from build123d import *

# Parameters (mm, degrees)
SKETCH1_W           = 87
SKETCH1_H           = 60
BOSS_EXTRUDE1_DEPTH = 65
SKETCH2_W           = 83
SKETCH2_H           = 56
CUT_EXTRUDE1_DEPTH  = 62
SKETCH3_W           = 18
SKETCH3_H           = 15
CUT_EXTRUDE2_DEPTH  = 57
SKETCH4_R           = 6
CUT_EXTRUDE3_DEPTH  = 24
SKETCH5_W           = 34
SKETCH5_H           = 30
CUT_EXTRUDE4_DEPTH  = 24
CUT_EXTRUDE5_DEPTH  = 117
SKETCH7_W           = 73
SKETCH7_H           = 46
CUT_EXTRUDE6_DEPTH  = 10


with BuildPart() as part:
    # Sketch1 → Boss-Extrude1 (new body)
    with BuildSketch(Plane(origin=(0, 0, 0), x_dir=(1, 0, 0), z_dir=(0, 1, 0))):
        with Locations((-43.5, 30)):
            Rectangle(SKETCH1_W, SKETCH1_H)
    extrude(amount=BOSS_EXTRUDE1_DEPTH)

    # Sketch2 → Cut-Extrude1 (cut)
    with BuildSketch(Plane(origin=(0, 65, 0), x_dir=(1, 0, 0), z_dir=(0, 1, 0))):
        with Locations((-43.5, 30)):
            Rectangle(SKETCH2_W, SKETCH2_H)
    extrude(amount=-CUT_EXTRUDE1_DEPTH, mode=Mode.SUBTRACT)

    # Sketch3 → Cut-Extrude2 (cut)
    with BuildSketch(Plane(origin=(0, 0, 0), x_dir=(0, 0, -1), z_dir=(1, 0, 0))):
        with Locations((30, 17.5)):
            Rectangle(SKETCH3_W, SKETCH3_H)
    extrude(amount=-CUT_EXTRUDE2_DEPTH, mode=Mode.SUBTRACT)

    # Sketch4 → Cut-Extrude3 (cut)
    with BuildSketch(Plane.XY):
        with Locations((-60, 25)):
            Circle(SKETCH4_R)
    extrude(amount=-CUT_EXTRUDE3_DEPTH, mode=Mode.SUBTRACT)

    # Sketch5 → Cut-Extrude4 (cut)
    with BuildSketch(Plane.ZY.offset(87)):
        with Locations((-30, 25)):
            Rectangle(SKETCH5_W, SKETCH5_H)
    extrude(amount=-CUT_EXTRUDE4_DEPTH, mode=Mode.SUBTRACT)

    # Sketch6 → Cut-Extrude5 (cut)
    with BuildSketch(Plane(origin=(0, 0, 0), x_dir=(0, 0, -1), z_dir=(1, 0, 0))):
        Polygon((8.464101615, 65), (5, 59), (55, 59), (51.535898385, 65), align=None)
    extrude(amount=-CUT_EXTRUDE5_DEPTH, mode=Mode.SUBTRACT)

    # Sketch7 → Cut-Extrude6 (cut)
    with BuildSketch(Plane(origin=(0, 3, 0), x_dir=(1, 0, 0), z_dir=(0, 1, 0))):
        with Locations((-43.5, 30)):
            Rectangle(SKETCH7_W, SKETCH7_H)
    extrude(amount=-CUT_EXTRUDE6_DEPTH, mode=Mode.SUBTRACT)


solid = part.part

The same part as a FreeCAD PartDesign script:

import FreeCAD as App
import Part
import Sketcher
Q = App.Units.Quantity


def add_polygon(sketch, points):
    """Adds a closed chain of lines whose ends are joined by coincident constraints."""
    first, n = sketch.GeometryCount, len(points)
    for a, b in zip(points, points[1:] + points[:1]):
        sketch.addGeometry(Part.LineSegment(App.Vector(*a, 0), App.Vector(*b, 0)), False)
    for i in range(n):
        sketch.addConstraint(Sketcher.Constraint("Coincident", first + i, 2, first + (i + 1) % n, 1))

doc = App.newDocument("Part")
body = doc.addObject("PartDesign::Body", "Body")

# Sketch on XZ plane
sketch1 = body.newObject("Sketcher::SketchObject", "Sketch")
sketch1.AttachmentSupport = (doc.getObject("XZ_Plane"), [""])
sketch1.MapMode = "FlatFace"
add_polygon(sketch1, [(-87, -60), (-87, 0), (0, 0), (0, -60)])  # lines 0-3
sketch1.addConstraint([
    Sketcher.Constraint("Vertical", 0),
    Sketcher.Constraint("Horizontal", 1),
    Sketcher.Constraint("Vertical", 2),
    Sketcher.Constraint("Horizontal", 3),
    Sketcher.Constraint("Coincident", 1, 2, -1, 1),
    Sketcher.Constraint("DistanceX", 1, 1, 1, 2, Q("87 mm")),
    Sketcher.Constraint("DistanceY", 0, 1, 0, 2, Q("60 mm")),
])
pad1 = body.newObject("PartDesign::Pad", "Pad")
pad1.Profile = sketch1
pad1.Length = 65
pad1.Reversed = True

# Sketch on XZ plane
sketch2 = body.newObject("Sketcher::SketchObject", "Sketch001")
sketch2.AttachmentSupport = (doc.getObject("XZ_Plane"), [""])
sketch2.MapMode = "FlatFace"
sketch2.AttachmentOffset = App.Placement(App.Vector(0, 0, -65), App.Rotation())
add_polygon(sketch2, [(-85, -58), (-85, -2), (-2, -2), (-2, -58)])  # lines 0-3
sketch2.addConstraint([
    Sketcher.Constraint("Vertical", 0),
    Sketcher.Constraint("Horizontal", 1),
    Sketcher.Constraint("Vertical", 2),
    Sketcher.Constraint("Horizontal", 3),
    Sketcher.Constraint("DistanceX", 1, 1, 1, 2, Q("83 mm")),
    Sketcher.Constraint("DistanceY", 0, 1, 0, 2, Q("56 mm")),
    Sketcher.Constraint("DistanceX", 0, 2, -1, 1, Q("85 mm")),
    Sketcher.Constraint("DistanceY", 0, 2, -1, 1, Q("2 mm")),
])
pocket1 = body.newObject("PartDesign::Pocket", "Pocket")
pocket1.Profile = sketch2
pocket1.Length = 62
pocket1.Reversed = True

# Sketch on YZ plane
sketch3 = body.newObject("Sketcher::SketchObject", "Sketch002")
sketch3.AttachmentSupport = (doc.getObject("YZ_Plane"), [""])
sketch3.MapMode = "FlatFace"
add_polygon(sketch3, [(25, -21), (10, -21), (10, -39), (25, -39)])  # lines 0-3
sketch3.addConstraint([
    Sketcher.Constraint("Horizontal", 0),
    Sketcher.Constraint("Vertical", 1),
    Sketcher.Constraint("Horizontal", 2),
    Sketcher.Constraint("Vertical", 3),
    Sketcher.Constraint("DistanceX", 0, 2, 0, 1, Q("15 mm")),
    Sketcher.Constraint("DistanceY", 1, 2, 1, 1, Q("18 mm")),
    Sketcher.Constraint("DistanceX", -1, 1, 0, 2, Q("10 mm")),
    Sketcher.Constraint("DistanceY", 0, 2, -1, 1, Q("21 mm")),
])
pocket2 = body.newObject("PartDesign::Pocket", "Pocket001")
pocket2.Profile = sketch3
pocket2.Length = 57

# Sketch on XY plane
sketch4 = body.newObject("Sketcher::SketchObject", "Sketch003")
sketch4.AttachmentSupport = (doc.getObject("XY_Plane"), [""])
sketch4.MapMode = "FlatFace"
sketch4.addGeometry(Part.Circle(App.Vector(-60, 25, 0), App.Vector(0, 0, 1), 6), False)
sketch4.addConstraint([
    Sketcher.Constraint("Diameter", 0, Q("12 mm")),
    Sketcher.Constraint("DistanceX", 0, 3, -1, 1, Q("60 mm")),
    Sketcher.Constraint("DistanceY", -1, 1, 0, 3, Q("25 mm")),
])
pocket3 = body.newObject("PartDesign::Pocket", "Pocket002")
pocket3.Profile = sketch4
pocket3.Length = 24

# Sketch on YZ plane
sketch5 = body.newObject("Sketcher::SketchObject", "Sketch004")
sketch5.AttachmentSupport = (doc.getObject("YZ_Plane"), [""])
sketch5.MapMode = "FlatFace"
sketch5.AttachmentOffset = App.Placement(App.Vector(0, 0, -87), App.Rotation())
add_polygon(sketch5, [(40, -47), (10, -47), (10, -13), (40, -13)])  # lines 0-3
sketch5.addConstraint([
    Sketcher.Constraint("Horizontal", 0),
    Sketcher.Constraint("Vertical", 1),
    Sketcher.Constraint("Horizontal", 2),
    Sketcher.Constraint("Vertical", 3),
    Sketcher.Constraint("DistanceX", 0, 2, 0, 1, Q("30 mm")),
    Sketcher.Constraint("DistanceY", 1, 1, 1, 2, Q("34 mm")),
    Sketcher.Constraint("DistanceX", -1, 1, 0, 2, Q("10 mm")),
    Sketcher.Constraint("DistanceY", 0, 2, -1, 1, Q("47 mm")),
])
pocket4 = body.newObject("PartDesign::Pocket", "Pocket003")
pocket4.Profile = sketch5
pocket4.Length = 24
pocket4.Reversed = True

# Sketch on YZ plane
sketch6 = body.newObject("Sketcher::SketchObject", "Sketch005")
sketch6.AttachmentSupport = (doc.getObject("YZ_Plane"), [""])
sketch6.MapMode = "FlatFace"
add_polygon(sketch6, [(65, -8.464102), (59, -5), (59, -55), (65, -51.535898)])  # lines 0-3
sketch6.addConstraint([
    Sketcher.Constraint("Vertical", 1),
    Sketcher.Constraint("Vertical", 3),
    Sketcher.Constraint("Equal", 0, 2),
    Sketcher.Constraint("DistanceY", 1, 2, 1, 1, Q("50 mm")),
    Sketcher.Constraint("Angle", 0, Q("150 deg")),
    Sketcher.Constraint("DistanceX", -1, 1, 0, 2, Q("59 mm")),
    Sketcher.Constraint("DistanceY", 0, 2, -1, 1, Q("5 mm")),
    Sketcher.Constraint("DistanceX", -1, 1, 2, 2, Q("65 mm")),
])
pocket5 = body.newObject("PartDesign::Pocket", "Pocket004")
pocket5.Profile = sketch6
pocket5.Length = 117

# Sketch on XZ plane
sketch7 = body.newObject("Sketcher::SketchObject", "Sketch006")
sketch7.AttachmentSupport = (doc.getObject("XZ_Plane"), [""])
sketch7.MapMode = "FlatFace"
sketch7.AttachmentOffset = App.Placement(App.Vector(0, 0, -3), App.Rotation())
add_polygon(sketch7, [(-80, -53), (-80, -7), (-7, -7), (-7, -53)])  # lines 0-3
sketch7.addConstraint([
    Sketcher.Constraint("Vertical", 0),
    Sketcher.Constraint("Horizontal", 1),
    Sketcher.Constraint("Vertical", 2),
    Sketcher.Constraint("Horizontal", 3),
    Sketcher.Constraint("DistanceX", 1, 1, 1, 2, Q("73 mm")),
    Sketcher.Constraint("DistanceY", 0, 1, 0, 2, Q("46 mm")),
    Sketcher.Constraint("DistanceX", 0, 2, -1, 1, Q("80 mm")),
    Sketcher.Constraint("DistanceY", 0, 2, -1, 1, Q("7 mm")),
])
pocket6 = body.newObject("PartDesign::Pocket", "Pocket005")
pocket6.Profile = sketch7
pocket6.Length = 10
pocket6.Reversed = True

doc.recompute()
